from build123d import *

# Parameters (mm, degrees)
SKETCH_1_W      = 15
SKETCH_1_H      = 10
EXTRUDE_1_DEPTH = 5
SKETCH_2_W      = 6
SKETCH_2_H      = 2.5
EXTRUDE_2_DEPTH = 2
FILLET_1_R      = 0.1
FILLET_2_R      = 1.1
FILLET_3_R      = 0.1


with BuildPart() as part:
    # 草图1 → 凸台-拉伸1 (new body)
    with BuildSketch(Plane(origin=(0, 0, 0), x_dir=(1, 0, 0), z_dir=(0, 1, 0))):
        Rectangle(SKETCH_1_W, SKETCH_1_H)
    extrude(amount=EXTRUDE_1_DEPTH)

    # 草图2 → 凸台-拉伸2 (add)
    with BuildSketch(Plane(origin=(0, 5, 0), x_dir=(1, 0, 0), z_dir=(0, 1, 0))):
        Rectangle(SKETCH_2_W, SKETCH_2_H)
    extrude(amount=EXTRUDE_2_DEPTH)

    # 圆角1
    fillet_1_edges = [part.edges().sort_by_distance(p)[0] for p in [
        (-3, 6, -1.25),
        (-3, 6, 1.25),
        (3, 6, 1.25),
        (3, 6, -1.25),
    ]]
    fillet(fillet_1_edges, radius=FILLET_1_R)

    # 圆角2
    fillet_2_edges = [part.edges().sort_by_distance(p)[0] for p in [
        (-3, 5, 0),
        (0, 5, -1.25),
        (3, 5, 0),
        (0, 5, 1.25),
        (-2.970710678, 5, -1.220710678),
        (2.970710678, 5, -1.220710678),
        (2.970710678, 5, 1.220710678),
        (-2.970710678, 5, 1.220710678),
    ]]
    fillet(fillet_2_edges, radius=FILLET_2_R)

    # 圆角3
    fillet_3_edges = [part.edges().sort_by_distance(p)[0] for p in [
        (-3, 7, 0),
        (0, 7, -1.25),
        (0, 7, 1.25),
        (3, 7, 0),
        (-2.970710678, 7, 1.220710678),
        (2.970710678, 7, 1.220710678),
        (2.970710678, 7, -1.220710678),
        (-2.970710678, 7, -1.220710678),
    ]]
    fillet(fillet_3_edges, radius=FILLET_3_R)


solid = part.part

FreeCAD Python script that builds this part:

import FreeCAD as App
import Part
import Sketcher
from FreeCAD import Vector
Q = App.Units.Quantity


def edges_at(feature, points):
    """Names of the edges that pass closest to the given points."""
    edges = feature.Shape.Edges
    near = lambda p: min(range(len(edges)), key=lambda i: edges[i].distToShape(Part.Vertex(*p))[0])
    return sorted({f"Edge{near(p) + 1}" for p in points})

doc = App.newDocument("Part")
body = doc.addObject("PartDesign::Body", "Body")

# Sketch on XZ plane
sketch1 = body.newObject("Sketcher::SketchObject", "Sketch")
sketch1.AttachmentSupport = (doc.getObject("XZ_Plane"), [""])
sketch1.MapMode = "FlatFace"
sketch1.addGeometry(Part.LineSegment(Vector(-8, -5, 0), Vector(-8, 5, 0)), False)
sketch1.addGeometry(Part.LineSegment(Vector(-8, 5, 0), Vector(8, 5, 0)), False)
sketch1.addGeometry(Part.LineSegment(Vector(8, 5, 0), Vector(8, -5, 0)), False)
sketch1.addGeometry(Part.LineSegment(Vector(8, -5, 0), Vector(-8, -5, 0)), False)
sketch1.addConstraint(Sketcher.Constraint("Coincident", 0, 2, 1, 1))
sketch1.addConstraint(Sketcher.Constraint("Coincident", 1, 2, 2, 1))
sketch1.addConstraint(Sketcher.Constraint("Coincident", 2, 2, 3, 1))
sketch1.addConstraint(Sketcher.Constraint("Coincident", 3, 2, 0, 1))
sketch1.addConstraint(Sketcher.Constraint("Vertical", 0))
sketch1.addConstraint(Sketcher.Constraint("Horizontal", 1))
sketch1.addConstraint(Sketcher.Constraint("Vertical", 2))
sketch1.addConstraint(Sketcher.Constraint("Horizontal", 3))
sketch1.addConstraint(Sketcher.Constraint("Symmetric", 0, 2, 2, 2, -1, 1))
sketch1.addConstraint(Sketcher.Constraint("DistanceX", 1, 1, 1, 2, Q("15 mm")))
sketch1.addConstraint(Sketcher.Constraint("DistanceY", 0, 1, 0, 2, Q("10 mm")))
pad1 = body.newObject("PartDesign::Pad", "Pad")
pad1.Profile = sketch1
pad1.Length = 5
pad1.Reversed = True

# Sketch on XZ plane
sketch2 = body.newObject("Sketcher::SketchObject", "Sketch001")
sketch2.AttachmentSupport = (doc.getObject("XZ_Plane"), [""])
sketch2.MapMode = "FlatFace"
sketch2.AttachmentOffset = App.Placement(Vector(0, 0, -5), App.Rotation())
sketch2.addGeometry(Part.LineSegment(Vector(-3, -1.2, 0), Vector(-3, 1.2, 0)), False)
sketch2.addGeometry(Part.LineSegment(Vector(-3, 1.2, 0), Vector(3, 1.2, 0)), False)
sketch2.addGeometry(Part.LineSegment(Vector(3, 1.2, 0), Vector(3, -1.2, 0)), False)
sketch2.addGeometry(Part.LineSegment(Vector(3, -1.2, 0), Vector(-3, -1.2, 0)), False)
sketch2.addConstraint(Sketcher.Constraint("Coincident", 0, 2, 1, 1))
sketch2.addConstraint(Sketcher.Constraint("Coincident", 1, 2, 2, 1))
sketch2.addConstraint(Sketcher.Constraint("Coincident", 2, 2, 3, 1))
sketch2.addConstraint(Sketcher.Constraint("Coincident", 3, 2, 0, 1))
sketch2.addConstraint(Sketcher.Constraint("Vertical", 0))
sketch2.addConstraint(Sketcher.Constraint("Horizontal", 1))
sketch2.addConstraint(Sketcher.Constraint("Vertical", 2))
sketch2.addConstraint(Sketcher.Constraint("Horizontal", 3))
sketch2.addConstraint(Sketcher.Constraint("Symmetric", 0, 2, 2, 2, -1, 1))
sketch2.addConstraint(Sketcher.Constraint("DistanceX", 1, 1, 1, 2, Q("6 mm")))
sketch2.addConstraint(Sketcher.Constraint("DistanceY", 0, 1, 0, 2, Q("2.5 mm")))
pad2 = body.newObject("PartDesign::Pad", "Pad001")
pad2.Profile = sketch2
pad2.Length = 2
pad2.Reversed = True
doc.recompute()

fillet = body.newObject("PartDesign::Fillet", "Fillet")
fillet.Base = (pad2, edges_at(pad2, [
    (-3, 6, -1.25),
    (-3, 6, 1.25),
    (3, 6, 1.25),
    (3, 6, -1.25),
]))
fillet.Radius = 0.1
doc.recompute()

fillet2 = body.newObject("PartDesign::Fillet", "Fillet001")
fillet2.Base = (fillet, edges_at(fillet, [
    (-3, 5, 0),
    (0, 5, -1.25),
    (3, 5, 0),
    (0, 5, 1.25),
    (-2.971, 5, -1.221),
    (2.971, 5, -1.221),
    (2.971, 5, 1.221),
    (-2.971, 5, 1.221),
]))
fillet2.Radius = 1.1
doc.recompute()

fillet3 = body.newObject("PartDesign::Fillet", "Fillet002")
fillet3.Base = (fillet2, edges_at(fillet2, [
    (-3, 7, 0),
    (0, 7, -1.25),
    (0, 7, 1.25),
    (3, 7, 0),
    (-2.971, 7, 1.221),
    (2.971, 7, 1.221),
    (2.971, 7, -1.221),
    (-2.971, 7, -1.221),
]))
fillet3.Radius = 0.1

doc.recompute()
